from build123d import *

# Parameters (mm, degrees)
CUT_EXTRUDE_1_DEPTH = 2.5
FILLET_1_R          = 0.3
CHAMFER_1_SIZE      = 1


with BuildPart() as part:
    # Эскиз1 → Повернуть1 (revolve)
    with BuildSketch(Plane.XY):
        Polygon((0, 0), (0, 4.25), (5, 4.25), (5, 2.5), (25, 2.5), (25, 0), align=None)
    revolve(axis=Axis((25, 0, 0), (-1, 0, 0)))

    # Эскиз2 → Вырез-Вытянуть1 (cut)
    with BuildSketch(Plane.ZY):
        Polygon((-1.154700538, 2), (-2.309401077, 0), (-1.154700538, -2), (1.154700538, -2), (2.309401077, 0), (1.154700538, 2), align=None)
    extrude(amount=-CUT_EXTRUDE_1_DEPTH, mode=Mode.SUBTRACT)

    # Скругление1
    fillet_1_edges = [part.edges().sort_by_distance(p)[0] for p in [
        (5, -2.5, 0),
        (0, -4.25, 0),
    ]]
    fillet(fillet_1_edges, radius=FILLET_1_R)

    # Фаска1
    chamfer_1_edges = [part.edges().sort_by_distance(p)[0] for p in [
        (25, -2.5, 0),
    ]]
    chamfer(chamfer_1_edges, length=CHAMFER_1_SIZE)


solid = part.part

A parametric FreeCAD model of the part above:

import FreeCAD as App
import Part
import Sketcher
from FreeCAD import Vector
Q = App.Units.Quantity


def edges_at(feature, points):
    """Names of the edges that pass closest to the given points."""
    edges = feature.Shape.Edges
    near = lambda p: min(range(len(edges)), key=lambda i: edges[i].distToShape(Part.Vertex(*p))[0])
    return sorted({f"Edge{near(p) + 1}" for p in points})


def add_polygon(sketch, points):
    """Adds a closed chain of lines whose ends are joined by coincident constraints."""
    first, n = sketch.GeometryCount, len(points)
    for a, b in zip(points, points[1:] + points[:1]):
        sketch.addGeometry(Part.LineSegment(App.Vector(*a, 0), App.Vector(*b, 0)), False)
    for i in range(n):
        sketch.addConstraint(Sketcher.Constraint("Coincident", first + i, 2, first + (i + 1) % n, 1))

doc = App.newDocument("Part")
body = doc.addObject("PartDesign::Body", "Body")

sketch1 = doc.addObject("Sketcher::SketchObject", "Sketch")
body.addObject(sketch1)
sketch1.AttachmentSupport = (doc.XY_Plane, [""])
sketch1.MapMode = "FlatFace"
add_polygon(sketch1, [(0, 4.2), (0, 0), (25, 0), (25, 2.5), (5, 2.5), (5, 4.2)])
sketch1.addConstraint([
    Sketcher.Constraint("Vertical", 0),
    Sketcher.Constraint("Horizontal", 1),
    Sketcher.Constraint("Vertical", 2),
    Sketcher.Constraint("Horizontal", 3),
    Sketcher.Constraint("Vertical", 4),
    Sketcher.Constraint("Horizontal", 5),
    Sketcher.Constraint("Coincident", 0, 2, -1, 1),
    Sketcher.Constraint("DistanceX", 1, 1, 1, 2, Q("25 mm")),
    Sketcher.Constraint("DistanceX", 3, 2, 3, 1, Q("20 mm")),
    Sketcher.Constraint("DistanceY", 2, 1, 2, 2, Q("2.5 mm")),
    Sketcher.Constraint("DistanceY", 0, 2, 0, 1, Q("4.25 mm")),
])
revolution = doc.addObject("PartDesign::Revolution", "Revolution")
body.addObject(revolution)
revolution.Profile = sketch1
revolution.ReferenceAxis = (sketch1, ["H_Axis"])
revolution.Angle = 360

sketch2 = doc.addObject("Sketcher::SketchObject", "Sketch001")
body.addObject(sketch2)
sketch2.AttachmentSupport = (doc.YZ_Plane, [""])
sketch2.MapMode = "FlatFace"
add_polygon(sketch2, [(2, -1.2), (0, -2.3), (-2, -1.2), (-2, 1.2), (0, 2.3), (2, 1.2)])
sketch2.addConstraint([
    Sketcher.Constraint("Vertical", 2),
    Sketcher.Constraint("Vertical", 5),
    Sketcher.Constraint("Symmetric", 0, 2, 3, 2, -1, 1),
    Sketcher.Constraint("Symmetric", 1, 2, 4, 2, -1, 1),
    Sketcher.Constraint("PointOnObject", 0, 2, -2),
    Sketcher.Constraint("Parallel", 0, 3),
    Sketcher.Constraint("Horizontal", 2, 2, 4, 2),
    Sketcher.Constraint("Angle", 0, Q("-150 deg")),
    Sketcher.Constraint("DistanceX", 1, 2, -1, 1, Q("2 mm")),
    Sketcher.Constraint("DistanceY", 2, 1, 2, 2, Q("2.309401 mm")),
])
pocket1 = doc.addObject("PartDesign::Pocket", "Pocket")
body.addObject(pocket1)
pocket1.Profile = sketch2
pocket1.Length = 2.5
pocket1.Reversed = True
doc.recompute()

fillet = doc.addObject("PartDesign::Fillet", "Fillet")
body.addObject(fillet)
fillet.Base = (pocket1, edges_at(pocket1, [(5, -2.5, 0), (0, -4.25, 0)]))
fillet.Radius = 0.3
doc.recompute()

chamfer = doc.addObject("PartDesign::Chamfer", "Chamfer")
body.addObject(chamfer)
chamfer.Base = (fillet, edges_at(fillet, [(25, -2.5, 0)]))
chamfer.Size = 1

doc.recompute()
